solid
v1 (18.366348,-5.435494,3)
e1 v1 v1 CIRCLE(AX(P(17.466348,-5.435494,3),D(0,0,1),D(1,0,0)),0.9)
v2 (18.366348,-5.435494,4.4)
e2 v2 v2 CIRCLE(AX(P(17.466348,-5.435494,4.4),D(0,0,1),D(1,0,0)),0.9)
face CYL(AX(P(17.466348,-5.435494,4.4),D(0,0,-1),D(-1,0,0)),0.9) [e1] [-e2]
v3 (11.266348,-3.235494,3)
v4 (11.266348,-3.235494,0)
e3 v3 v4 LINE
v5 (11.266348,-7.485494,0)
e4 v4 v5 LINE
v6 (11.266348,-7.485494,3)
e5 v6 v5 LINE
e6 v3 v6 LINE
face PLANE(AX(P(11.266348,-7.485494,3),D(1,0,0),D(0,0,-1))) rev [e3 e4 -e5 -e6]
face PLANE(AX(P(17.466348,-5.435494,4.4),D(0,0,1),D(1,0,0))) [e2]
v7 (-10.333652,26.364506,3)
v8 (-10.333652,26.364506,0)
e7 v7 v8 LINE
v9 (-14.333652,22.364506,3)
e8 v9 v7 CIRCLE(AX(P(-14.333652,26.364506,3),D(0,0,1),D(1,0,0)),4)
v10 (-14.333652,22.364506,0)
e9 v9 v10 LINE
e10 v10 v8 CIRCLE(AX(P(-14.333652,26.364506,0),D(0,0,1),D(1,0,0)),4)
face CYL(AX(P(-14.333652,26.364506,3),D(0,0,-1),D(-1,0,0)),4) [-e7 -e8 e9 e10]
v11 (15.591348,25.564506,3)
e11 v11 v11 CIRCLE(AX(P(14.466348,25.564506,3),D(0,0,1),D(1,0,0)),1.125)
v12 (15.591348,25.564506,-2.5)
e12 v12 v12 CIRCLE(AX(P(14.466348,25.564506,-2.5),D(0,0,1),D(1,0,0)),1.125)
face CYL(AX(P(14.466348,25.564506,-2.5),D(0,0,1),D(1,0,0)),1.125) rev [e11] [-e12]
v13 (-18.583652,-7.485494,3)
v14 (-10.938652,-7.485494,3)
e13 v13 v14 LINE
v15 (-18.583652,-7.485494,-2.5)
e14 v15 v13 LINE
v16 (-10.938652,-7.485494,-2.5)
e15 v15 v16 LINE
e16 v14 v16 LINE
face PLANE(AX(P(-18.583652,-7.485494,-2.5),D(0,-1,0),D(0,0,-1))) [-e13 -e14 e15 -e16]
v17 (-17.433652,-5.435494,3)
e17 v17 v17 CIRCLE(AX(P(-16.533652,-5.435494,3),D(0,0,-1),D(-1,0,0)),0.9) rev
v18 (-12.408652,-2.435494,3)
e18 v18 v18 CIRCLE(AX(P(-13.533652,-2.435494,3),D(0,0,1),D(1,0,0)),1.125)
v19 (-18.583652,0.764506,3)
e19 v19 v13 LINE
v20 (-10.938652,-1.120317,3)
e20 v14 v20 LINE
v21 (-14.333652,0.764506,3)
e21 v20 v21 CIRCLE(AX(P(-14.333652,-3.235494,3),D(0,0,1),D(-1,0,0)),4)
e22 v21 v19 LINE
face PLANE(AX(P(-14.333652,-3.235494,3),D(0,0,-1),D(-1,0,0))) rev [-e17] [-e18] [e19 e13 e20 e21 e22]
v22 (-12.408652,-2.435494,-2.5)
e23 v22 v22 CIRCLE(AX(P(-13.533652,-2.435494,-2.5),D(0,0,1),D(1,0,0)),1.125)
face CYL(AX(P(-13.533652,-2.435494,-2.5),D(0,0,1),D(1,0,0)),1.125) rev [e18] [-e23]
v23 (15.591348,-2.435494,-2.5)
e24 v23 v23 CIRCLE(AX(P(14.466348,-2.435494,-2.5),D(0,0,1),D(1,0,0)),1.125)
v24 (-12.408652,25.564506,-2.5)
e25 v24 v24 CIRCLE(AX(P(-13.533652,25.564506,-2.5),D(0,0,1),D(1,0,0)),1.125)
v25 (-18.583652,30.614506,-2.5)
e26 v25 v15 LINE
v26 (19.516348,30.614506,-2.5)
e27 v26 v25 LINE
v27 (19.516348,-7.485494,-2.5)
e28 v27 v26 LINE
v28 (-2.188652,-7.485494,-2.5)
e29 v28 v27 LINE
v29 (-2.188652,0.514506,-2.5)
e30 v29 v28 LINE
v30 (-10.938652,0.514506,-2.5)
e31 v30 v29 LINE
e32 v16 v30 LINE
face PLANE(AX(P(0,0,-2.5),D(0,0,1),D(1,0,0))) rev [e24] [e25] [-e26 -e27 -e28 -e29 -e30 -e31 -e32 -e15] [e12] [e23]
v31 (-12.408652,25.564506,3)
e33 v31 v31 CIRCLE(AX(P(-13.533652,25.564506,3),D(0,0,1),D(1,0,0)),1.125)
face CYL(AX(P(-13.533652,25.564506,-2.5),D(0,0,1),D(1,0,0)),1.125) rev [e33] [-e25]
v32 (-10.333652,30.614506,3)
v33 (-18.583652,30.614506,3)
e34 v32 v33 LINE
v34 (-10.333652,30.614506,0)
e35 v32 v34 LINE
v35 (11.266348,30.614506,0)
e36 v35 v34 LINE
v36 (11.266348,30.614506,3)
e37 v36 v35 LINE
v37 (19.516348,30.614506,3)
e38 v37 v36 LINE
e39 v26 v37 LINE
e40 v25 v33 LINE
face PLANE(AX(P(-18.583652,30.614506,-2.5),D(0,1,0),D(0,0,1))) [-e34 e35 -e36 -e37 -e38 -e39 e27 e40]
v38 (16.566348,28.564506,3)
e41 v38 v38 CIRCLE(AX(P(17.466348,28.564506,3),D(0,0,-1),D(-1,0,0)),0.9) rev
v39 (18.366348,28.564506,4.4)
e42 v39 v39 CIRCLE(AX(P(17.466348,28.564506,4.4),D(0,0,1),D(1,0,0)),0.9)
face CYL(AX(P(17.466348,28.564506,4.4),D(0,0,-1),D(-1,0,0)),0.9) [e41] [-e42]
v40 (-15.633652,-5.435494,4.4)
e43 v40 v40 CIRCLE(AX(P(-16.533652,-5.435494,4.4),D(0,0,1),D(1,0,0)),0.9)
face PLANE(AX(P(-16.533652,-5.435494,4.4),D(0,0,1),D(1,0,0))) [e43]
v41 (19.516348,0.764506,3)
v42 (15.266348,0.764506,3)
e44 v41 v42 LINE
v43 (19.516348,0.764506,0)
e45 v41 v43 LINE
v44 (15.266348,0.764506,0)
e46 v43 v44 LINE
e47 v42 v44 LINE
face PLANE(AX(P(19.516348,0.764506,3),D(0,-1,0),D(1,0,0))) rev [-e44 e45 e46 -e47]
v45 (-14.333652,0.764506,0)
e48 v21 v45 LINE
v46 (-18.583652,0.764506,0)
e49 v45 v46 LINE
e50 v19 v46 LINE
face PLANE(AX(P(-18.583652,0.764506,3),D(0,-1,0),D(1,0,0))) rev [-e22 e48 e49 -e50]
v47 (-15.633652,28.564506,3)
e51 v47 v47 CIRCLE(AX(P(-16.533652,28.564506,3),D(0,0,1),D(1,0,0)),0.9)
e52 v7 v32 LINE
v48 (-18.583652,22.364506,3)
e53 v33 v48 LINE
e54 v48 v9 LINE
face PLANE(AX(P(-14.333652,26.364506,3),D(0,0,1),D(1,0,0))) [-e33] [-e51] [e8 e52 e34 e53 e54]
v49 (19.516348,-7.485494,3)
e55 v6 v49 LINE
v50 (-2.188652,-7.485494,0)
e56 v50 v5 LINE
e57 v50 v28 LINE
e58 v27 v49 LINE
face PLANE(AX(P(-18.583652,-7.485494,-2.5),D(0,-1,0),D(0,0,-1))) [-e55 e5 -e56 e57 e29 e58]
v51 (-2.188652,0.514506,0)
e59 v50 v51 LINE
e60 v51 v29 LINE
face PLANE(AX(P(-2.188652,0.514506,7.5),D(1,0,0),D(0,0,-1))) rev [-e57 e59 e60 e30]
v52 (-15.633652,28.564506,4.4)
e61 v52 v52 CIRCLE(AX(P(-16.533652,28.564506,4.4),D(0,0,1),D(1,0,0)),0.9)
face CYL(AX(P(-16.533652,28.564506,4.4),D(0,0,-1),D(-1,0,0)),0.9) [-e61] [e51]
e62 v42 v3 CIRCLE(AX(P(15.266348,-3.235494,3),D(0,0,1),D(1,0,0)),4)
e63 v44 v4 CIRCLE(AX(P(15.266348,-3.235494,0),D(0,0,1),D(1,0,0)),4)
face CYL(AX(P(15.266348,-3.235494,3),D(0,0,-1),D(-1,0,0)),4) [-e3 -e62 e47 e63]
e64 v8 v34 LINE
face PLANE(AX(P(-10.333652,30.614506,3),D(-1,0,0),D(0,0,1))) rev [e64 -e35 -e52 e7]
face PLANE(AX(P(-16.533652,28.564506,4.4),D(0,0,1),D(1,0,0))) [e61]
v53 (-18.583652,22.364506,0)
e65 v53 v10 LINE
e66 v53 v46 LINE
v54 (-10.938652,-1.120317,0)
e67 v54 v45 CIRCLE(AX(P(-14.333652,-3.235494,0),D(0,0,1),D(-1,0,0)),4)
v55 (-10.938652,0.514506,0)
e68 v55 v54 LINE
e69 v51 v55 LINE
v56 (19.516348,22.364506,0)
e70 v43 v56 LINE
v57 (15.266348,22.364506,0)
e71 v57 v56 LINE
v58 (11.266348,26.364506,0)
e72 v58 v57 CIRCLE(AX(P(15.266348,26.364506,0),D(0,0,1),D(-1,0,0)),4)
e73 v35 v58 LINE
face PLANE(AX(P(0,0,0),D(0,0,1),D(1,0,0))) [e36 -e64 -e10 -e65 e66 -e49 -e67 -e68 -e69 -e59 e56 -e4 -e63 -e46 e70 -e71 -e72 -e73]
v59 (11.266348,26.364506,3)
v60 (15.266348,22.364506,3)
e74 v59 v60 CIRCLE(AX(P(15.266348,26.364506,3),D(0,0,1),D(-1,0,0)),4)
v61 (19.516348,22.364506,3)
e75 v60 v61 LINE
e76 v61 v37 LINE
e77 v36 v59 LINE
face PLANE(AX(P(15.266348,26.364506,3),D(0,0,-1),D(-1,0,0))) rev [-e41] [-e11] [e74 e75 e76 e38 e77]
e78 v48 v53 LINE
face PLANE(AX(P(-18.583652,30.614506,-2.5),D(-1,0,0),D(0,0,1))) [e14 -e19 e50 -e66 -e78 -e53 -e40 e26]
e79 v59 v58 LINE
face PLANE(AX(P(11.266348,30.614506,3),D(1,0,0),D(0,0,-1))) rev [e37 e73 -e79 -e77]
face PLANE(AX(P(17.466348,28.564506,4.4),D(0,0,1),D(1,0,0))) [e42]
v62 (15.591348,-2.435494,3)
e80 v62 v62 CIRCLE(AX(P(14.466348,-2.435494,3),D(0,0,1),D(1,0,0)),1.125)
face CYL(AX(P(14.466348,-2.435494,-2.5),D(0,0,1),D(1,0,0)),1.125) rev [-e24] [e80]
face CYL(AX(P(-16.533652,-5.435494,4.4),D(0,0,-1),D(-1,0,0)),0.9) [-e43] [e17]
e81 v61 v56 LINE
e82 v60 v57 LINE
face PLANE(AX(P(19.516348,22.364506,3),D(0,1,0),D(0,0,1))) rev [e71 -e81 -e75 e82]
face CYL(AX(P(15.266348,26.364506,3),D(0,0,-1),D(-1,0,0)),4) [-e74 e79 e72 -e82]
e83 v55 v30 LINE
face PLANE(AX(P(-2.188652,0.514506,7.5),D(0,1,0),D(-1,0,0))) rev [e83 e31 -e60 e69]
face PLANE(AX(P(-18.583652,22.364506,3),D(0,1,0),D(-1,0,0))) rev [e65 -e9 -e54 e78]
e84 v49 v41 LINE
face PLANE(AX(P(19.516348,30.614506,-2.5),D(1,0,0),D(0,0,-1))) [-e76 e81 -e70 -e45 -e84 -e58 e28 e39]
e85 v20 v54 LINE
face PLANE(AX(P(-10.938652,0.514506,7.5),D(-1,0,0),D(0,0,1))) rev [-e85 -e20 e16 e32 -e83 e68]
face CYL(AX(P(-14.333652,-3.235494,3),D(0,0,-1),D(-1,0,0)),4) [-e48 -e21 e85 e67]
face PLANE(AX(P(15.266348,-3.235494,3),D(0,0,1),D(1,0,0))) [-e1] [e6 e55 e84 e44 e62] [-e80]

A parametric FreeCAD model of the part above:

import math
import FreeCAD as App
import Part
import Sketcher
Q = App.Units.Quantity


def add_polygon(sketch, points):
    """Adds a closed chain of lines whose ends are joined by coincident constraints."""
    first, n = sketch.GeometryCount, len(points)
    for a, b in zip(points, points[1:] + points[:1]):
        sketch.addGeometry(Part.LineSegment(App.Vector(*a, 0), App.Vector(*b, 0)), False)
    for i in range(n):
        sketch.addConstraint(Sketcher.Constraint("Coincident", first + i, 2, first + (i + 1) % n, 1))

doc = App.newDocument("Part")
body = doc.addObject("PartDesign::Body", "Body")

# Sketch on XY plane
sketch1 = body.newObject("Sketcher::SketchObject", "Sketch")
sketch1.AttachmentSupport = (doc.getObject("XY_Plane"), [""])
sketch1.MapMode = "FlatFace"
add_polygon(sketch1, [(-18.6, 30.6), (-18.6, -7.5), (19.5, -7.5), (19.5, 30.6)])  # lines 0-3
sketch1.addGeometry(Part.Circle(App.Vector(-13.5, -2.4, 0), App.Vector(0, 0, 1), 1.1), False)  # 4
sketch1.addGeometry(Part.Circle(App.Vector(14.5, -2.4, 0), App.Vector(0, 0, 1), 1.1), False)  # 5
sketch1.addGeometry(Part.Circle(App.Vector(-13.5, 25.6, 0), App.Vector(0, 0, 1), 1.1), False)  # 6
sketch1.addGeometry(Part.Circle(App.Vector(14.5, 25.6, 0), App.Vector(0, 0, 1), 1.1), False)  # 7
sketch1.addConstraint([
    Sketcher.Constraint("Vertical", 0),
    Sketcher.Constraint("Horizontal", 1),
    Sketcher.Constraint("Vertical", 2),
    Sketcher.Constraint("Horizontal", 3),
    Sketcher.Constraint("Equal", 4, 5),
    Sketcher.Constraint("Equal", 5, 6),
    Sketcher.Constraint("Equal", 6, 7),
    Sketcher.Constraint("Horizontal", 4, 3, 5, 3),
    Sketcher.Constraint("Horizontal", 6, 3, 7, 3),
    Sketcher.Constraint("Vertical", 4, 3, 6, 3),
    Sketcher.Constraint("Vertical", 5, 3, 7, 3),
    Sketcher.Constraint("Equal", 3, 0),
    Sketcher.Constraint("Diameter", 4, Q("2.25 mm")),
    Sketcher.Constraint("DistanceX", 1, 1, 1, 2, Q("38.1 mm")),
    Sketcher.Constraint("DistanceX", 4, 3, 5, 3, Q("28 mm")),
    Sketcher.Constraint("DistanceY", 4, 3, 6, 3, Q("28 mm")),
    Sketcher.Constraint("DistanceX", 0, 2, 4, 3, Q("5.05 mm")),
    Sketcher.Constraint("DistanceY", 0, 2, 4, 3, Q("5.05 mm")),
    Sketcher.Constraint("DistanceX", 4, 3, -1, 1, Q("13.533652 mm")),
    Sketcher.Constraint("DistanceY", 4, 3, -1, 1, Q("2.435494 mm")),
])
pad1 = body.newObject("PartDesign::Pad", "Pad")
pad1.Profile = sketch1
pad1.Length = 2.5
pad1.Reversed = True

# Sketch on XY plane
sketch2 = body.newObject("Sketcher::SketchObject", "Sketch001")
sketch2.AttachmentSupport = (doc.getObject("XY_Plane"), [""])
sketch2.MapMode = "FlatFace"
sketch2.AttachmentOffset = App.Placement(App.Vector(0, 0, 3), App.Rotation())
sketch2.addGeometry([
    Part.LineSegment(App.Vector(-10.3, 30.6, 0), App.Vector(-18.6, 30.6, 0)),  # 0
    Part.LineSegment(App.Vector(-18.6, 30.6, 0), App.Vector(-18.6, 22.4, 0)),  # 1
    Part.LineSegment(App.Vector(-18.6, 22.4, 0), App.Vector(-14.3, 22.4, 0)),  # 2
    Part.ArcOfCircle(Part.Circle(App.Vector(-14.3, 26.4, 0), App.Vector(0, 0, 1), 4), math.radians(-90), math.radians(0)),  # 3
    Part.LineSegment(App.Vector(-10.3, 26.4, 0), App.Vector(-10.3, 30.6, 0)),  # 4
    Part.Circle(App.Vector(-13.5, 25.6, 0), App.Vector(0, 0, 1), 1.1),  # 5
    Part.LineSegment(App.Vector(19.5, 30.6, 0), App.Vector(11.3, 30.6, 0)),  # 6
    Part.LineSegment(App.Vector(11.3, 30.6, 0), App.Vector(11.3, 26.4, 0)),  # 7
    Part.ArcOfCircle(Part.Circle(App.Vector(15.3, 26.4, 0), App.Vector(0, 0, 1), 4), math.radians(-180), math.radians(-90)),  # 8
    Part.LineSegment(App.Vector(15.3, 22.4, 0), App.Vector(19.5, 22.4, 0)),  # 9
    Part.LineSegment(App.Vector(19.5, 22.4, 0), App.Vector(19.5, 30.6, 0)),  # 10
    Part.Circle(App.Vector(14.5, 25.6, 0), App.Vector(0, 0, 1), 1.1),  # 11
    Part.LineSegment(App.Vector(11.3, -7.5, 0), App.Vector(19.5, -7.5, 0)),  # 12
    Part.LineSegment(App.Vector(19.5, -7.5, 0), App.Vector(19.5, 0.8, 0)),  # 13
    Part.LineSegment(App.Vector(19.5, 0.8, 0), App.Vector(15.3, 0.8, 0)),  # 14
    Part.ArcOfCircle(Part.Circle(App.Vector(15.3, -3.2, 0), App.Vector(0, 0, 1), 4), math.radians(90), math.radians(180)),  # 15
    Part.LineSegment(App.Vector(11.3, -3.2, 0), App.Vector(11.3, -7.5, 0)),  # 16
    Part.Circle(App.Vector(14.5, -2.4, 0), App.Vector(0, 0, 1), 1.1),  # 17
    Part.LineSegment(App.Vector(-18.6, -7.5, 0), App.Vector(-10.3, -7.5, 0)),  # 18
    Part.LineSegment(App.Vector(-10.3, -7.5, 0), App.Vector(-10.3, -3.2, 0)),  # 19
    Part.ArcOfCircle(Part.Circle(App.Vector(-14.3, -3.2, 0), App.Vector(0, 0, 1), 4), math.radians(0), math.radians(90)),  # 20
    Part.LineSegment(App.Vector(-14.3, 0.8, 0), App.Vector(-18.6, 0.8, 0)),  # 21
    Part.LineSegment(App.Vector(-18.6, 0.8, 0), App.Vector(-18.6, -7.5, 0)),  # 22
    Part.Circle(App.Vector(-13.5, -2.4, 0), App.Vector(0, 0, 1), 1.1),  # 23
], False)
sketch2.addConstraint([
    Sketcher.Constraint("Coincident", 0, 2, 1, 1),
    Sketcher.Constraint("Coincident", 1, 2, 2, 1),
    Sketcher.Constraint("Tangent", 2, 2, 3, 1),
    Sketcher.Constraint("Tangent", 3, 2, 4, 1),
    Sketcher.Constraint("Coincident", 4, 2, 0, 1),
    Sketcher.Constraint("Coincident", 6, 2, 7, 1),
    Sketcher.Constraint("Tangent", 7, 2, 8, 1),
    Sketcher.Constraint("Tangent", 8, 2, 9, 1),
    Sketcher.Constraint("Coincident", 9, 2, 10, 1),
    Sketcher.Constraint("Coincident", 10, 2, 6, 1),
    Sketcher.Constraint("Coincident", 12, 2, 13, 1),
    Sketcher.Constraint("Coincident", 13, 2, 14, 1),
    Sketcher.Constraint("Tangent", 14, 2, 15, 1),
    Sketcher.Constraint("Tangent", 15, 2, 16, 1),
    Sketcher.Constraint("Coincident", 16, 2, 12, 1),
    Sketcher.Constraint("Coincident", 18, 2, 19, 1),
    Sketcher.Constraint("Tangent", 19, 2, 20, 1),
    Sketcher.Constraint("Tangent", 20, 2, 21, 1),
    Sketcher.Constraint("Coincident", 21, 2, 22, 1),
    Sketcher.Constraint("Coincident", 22, 2, 18, 1),
    Sketcher.Constraint("Horizontal", 0),
    Sketcher.Constraint("Vertical", 1),
    Sketcher.Constraint("Horizontal", 2),
    Sketcher.Constraint("Vertical", 4),
    Sketcher.Constraint("Horizontal", 6),
    Sketcher.Constraint("Vertical", 7),
    Sketcher.Constraint("Horizontal", 9),
    Sketcher.Constraint("Vertical", 10),
    Sketcher.Constraint("Horizontal", 12),
    Sketcher.Constraint("Vertical", 13),
    Sketcher.Constraint("Horizontal", 14),
    Sketcher.Constraint("Vertical", 16),
    Sketcher.Constraint("Horizontal", 18),
    Sketcher.Constraint("Vertical", 19),
    Sketcher.Constraint("Horizontal", 21),
    Sketcher.Constraint("Vertical", 22),
    Sketcher.Constraint("Equal", 3, 8),
    Sketcher.Constraint("Equal", 5, 11),
    Sketcher.Constraint("Equal", 8, 15),
    Sketcher.Constraint("Equal", 11, 17),
    Sketcher.Constraint("Equal", 15, 20),
    Sketcher.Constraint("Equal", 17, 23),
    Sketcher.Constraint("Horizontal", 3, 3, 8, 3),
    Sketcher.Constraint("Horizontal", 5, 3, 11, 3),
    Sketcher.Constraint("Horizontal", 15, 3, 20, 3),
    Sketcher.Constraint("Horizontal", 17, 3, 23, 3),
    Sketcher.Constraint("Horizontal", 4, 2, 6, 2),
    Sketcher.Constraint("Horizontal", 16, 2, 18, 2),
    Sketcher.Constraint("Vertical", 8, 3, 15, 3),
    Sketcher.Constraint("Vertical", 11, 3, 17, 3),
    Sketcher.Constraint("Vertical", 3, 3, 20, 3),
    Sketcher.Constraint("Vertical", 5, 3, 23, 3),
    Sketcher.Constraint("Vertical", 10, 2, 12, 2),
    Sketcher.Constraint("Vertical", 1, 2, 21, 2),
    Sketcher.Constraint("Equal", 0, 6),
    Sketcher.Constraint("Equal", 18, 1),
    Sketcher.Constraint("Equal", 10, 13),
    Sketcher.Constraint("Radius", 3, Q("4 mm")),
    Sketcher.Constraint("Diameter", 5, Q("2.25 mm")),
    Sketcher.Constraint("DistanceX", 5, 3, 11, 3, Q("28 mm")),
    Sketcher.Constraint("DistanceY", 17, 3, 11, 3, Q("28 mm")),
    Sketcher.Constraint("DistanceX", 0, 2, 0, 1, Q("8.25 mm")),
    Sketcher.Constraint("DistanceX", 3, 3, 5, 3, Q("0.8 mm")),
    Sketcher.Constraint("DistanceY", 5, 3, 3, 3, Q("0.8 mm")),
    Sketcher.Constraint("DistanceX", 5, 3, 8, 3, Q("28.8 mm")),
    Sketcher.Constraint("DistanceY", 15, 3, 11, 3, Q("28.8 mm")),
    Sketcher.Constraint("DistanceX", 3, 3, -1, 1, Q("14.333652 mm")),
    Sketcher.Constraint("DistanceY", -1, 1, 3, 3, Q("26.364506 mm")),
])
pad2 = body.newObject("PartDesign::Pad", "Pad001")
pad2.Profile = sketch2
pad2.Length = 3
pad2.Reversed = True

# Sketch on XY plane
sketch3 = body.newObject("Sketcher::SketchObject", "Sketch002")
sketch3.AttachmentSupport = (doc.getObject("XY_Plane"), [""])
sketch3.MapMode = "FlatFace"
sketch3.AttachmentOffset = App.Placement(App.Vector(0, 0, -2.5), App.Rotation())
add_polygon(sketch3, [(-2, 1), (-2, -5), (-11, -5), (-11, 1)])  # lines 0-3
sketch3.addConstraint([
    Sketcher.Constraint("Vertical", 0),
    Sketcher.Constraint("Horizontal", 1),
    Sketcher.Constraint("Vertical", 2),
    Sketcher.Constraint("Horizontal", 3),
    Sketcher.Constraint("DistanceX", 1, 2, 1, 1, Q("8.75 mm")),
    Sketcher.Constraint("DistanceY", 0, 2, 0, 1, Q("5.25 mm")),
    Sketcher.Constraint("DistanceX", 0, 2, -1, 1, Q("2.188652 mm")),
    Sketcher.Constraint("DistanceY", 0, 2, -1, 1, Q("4.735494 mm")),
])
pocket1 = body.newObject("PartDesign::Pocket", "Pocket")
pocket1.Profile = sketch3
pocket1.Length = 10
pocket1.Reversed = True

# Sketch on XY plane
sketch4 = body.newObject("Sketcher::SketchObject", "Sketch003")
sketch4.AttachmentSupport = (doc.getObject("XY_Plane"), [""])
sketch4.MapMode = "FlatFace"
sketch4.AttachmentOffset = App.Placement(App.Vector(0, 0, -2.5), App.Rotation())
add_polygon(sketch4, [(-2.2, -4.7), (-2.2, -7.5), (-10.9, -7.5), (-10.9, -4.7)])  # lines 0-3
sketch4.addConstraint([
    Sketcher.Constraint("Vertical", 0),
    Sketcher.Constraint("Horizontal", 1),
    Sketcher.Constraint("Vertical", 2),
    Sketcher.Constraint("Horizontal", 3),
    Sketcher.Constraint("DistanceX", 1, 2, 1, 1, Q("8.75 mm")),
    Sketcher.Constraint("DistanceY", 0, 2, 0, 1, Q("2.75 mm")),
    Sketcher.Constraint("DistanceX", 0, 2, -1, 1, Q("2.188652 mm")),
    Sketcher.Constraint("DistanceY", 0, 2, -1, 1, Q("7.485494 mm")),
])
pocket2 = body.newObject("PartDesign::Pocket", "Pocket001")
pocket2.Profile = sketch4
pocket2.Length = 10
pocket2.Reversed = True

# Sketch on XY plane
sketch5 = body.newObject("Sketcher::SketchObject", "Sketch004")
sketch5.AttachmentSupport = (doc.getObject("XY_Plane"), [""])
sketch5.MapMode = "FlatFace"
sketch5.AttachmentOffset = App.Placement(App.Vector(0, 0, 3), App.Rotation())
sketch5.addGeometry([
    Part.Circle(App.Vector(-16.5, 28.6, 0), App.Vector(0, 0, 1), 0.9),
    Part.Circle(App.Vector(17.5, 28.6, 0), App.Vector(0, 0, 1), 0.9),
    Part.Circle(App.Vector(17.5, -5.4, 0), App.Vector(0, 0, 1), 0.9),
    Part.Circle(App.Vector(-16.5, -5.4, 0), App.Vector(0, 0, 1), 0.9),
], False)
sketch5.addConstraint([
    Sketcher.Constraint("Equal", 0, 1),
    Sketcher.Constraint("Equal", 1, 2),
    Sketcher.Constraint("Equal", 2, 3),
    Sketcher.Constraint("Horizontal", 0, 3, 1, 3),
    Sketcher.Constraint("Horizontal", 2, 3, 3, 3),
    Sketcher.Constraint("Vertical", 1, 3, 2, 3),
    Sketcher.Constraint("Vertical", 0, 3, 3, 3),
    Sketcher.Constraint("Diameter", 0, Q("1.8 mm")),
    Sketcher.Constraint("DistanceX", 0, 3, 1, 3, Q("34 mm")),
    Sketcher.Constraint("DistanceY", 2, 3, 1, 3, Q("34 mm")),
    Sketcher.Constraint("DistanceX", 0, 3, -1, 1, Q("16.533652 mm")),
    Sketcher.Constraint("DistanceY", -1, 1, 0, 3, Q("28.564506 mm")),
])
pad3 = body.newObject("PartDesign::Pad", "Pad002")
pad3.Profile = sketch5
pad3.Length = 1.4

doc.recompute()
